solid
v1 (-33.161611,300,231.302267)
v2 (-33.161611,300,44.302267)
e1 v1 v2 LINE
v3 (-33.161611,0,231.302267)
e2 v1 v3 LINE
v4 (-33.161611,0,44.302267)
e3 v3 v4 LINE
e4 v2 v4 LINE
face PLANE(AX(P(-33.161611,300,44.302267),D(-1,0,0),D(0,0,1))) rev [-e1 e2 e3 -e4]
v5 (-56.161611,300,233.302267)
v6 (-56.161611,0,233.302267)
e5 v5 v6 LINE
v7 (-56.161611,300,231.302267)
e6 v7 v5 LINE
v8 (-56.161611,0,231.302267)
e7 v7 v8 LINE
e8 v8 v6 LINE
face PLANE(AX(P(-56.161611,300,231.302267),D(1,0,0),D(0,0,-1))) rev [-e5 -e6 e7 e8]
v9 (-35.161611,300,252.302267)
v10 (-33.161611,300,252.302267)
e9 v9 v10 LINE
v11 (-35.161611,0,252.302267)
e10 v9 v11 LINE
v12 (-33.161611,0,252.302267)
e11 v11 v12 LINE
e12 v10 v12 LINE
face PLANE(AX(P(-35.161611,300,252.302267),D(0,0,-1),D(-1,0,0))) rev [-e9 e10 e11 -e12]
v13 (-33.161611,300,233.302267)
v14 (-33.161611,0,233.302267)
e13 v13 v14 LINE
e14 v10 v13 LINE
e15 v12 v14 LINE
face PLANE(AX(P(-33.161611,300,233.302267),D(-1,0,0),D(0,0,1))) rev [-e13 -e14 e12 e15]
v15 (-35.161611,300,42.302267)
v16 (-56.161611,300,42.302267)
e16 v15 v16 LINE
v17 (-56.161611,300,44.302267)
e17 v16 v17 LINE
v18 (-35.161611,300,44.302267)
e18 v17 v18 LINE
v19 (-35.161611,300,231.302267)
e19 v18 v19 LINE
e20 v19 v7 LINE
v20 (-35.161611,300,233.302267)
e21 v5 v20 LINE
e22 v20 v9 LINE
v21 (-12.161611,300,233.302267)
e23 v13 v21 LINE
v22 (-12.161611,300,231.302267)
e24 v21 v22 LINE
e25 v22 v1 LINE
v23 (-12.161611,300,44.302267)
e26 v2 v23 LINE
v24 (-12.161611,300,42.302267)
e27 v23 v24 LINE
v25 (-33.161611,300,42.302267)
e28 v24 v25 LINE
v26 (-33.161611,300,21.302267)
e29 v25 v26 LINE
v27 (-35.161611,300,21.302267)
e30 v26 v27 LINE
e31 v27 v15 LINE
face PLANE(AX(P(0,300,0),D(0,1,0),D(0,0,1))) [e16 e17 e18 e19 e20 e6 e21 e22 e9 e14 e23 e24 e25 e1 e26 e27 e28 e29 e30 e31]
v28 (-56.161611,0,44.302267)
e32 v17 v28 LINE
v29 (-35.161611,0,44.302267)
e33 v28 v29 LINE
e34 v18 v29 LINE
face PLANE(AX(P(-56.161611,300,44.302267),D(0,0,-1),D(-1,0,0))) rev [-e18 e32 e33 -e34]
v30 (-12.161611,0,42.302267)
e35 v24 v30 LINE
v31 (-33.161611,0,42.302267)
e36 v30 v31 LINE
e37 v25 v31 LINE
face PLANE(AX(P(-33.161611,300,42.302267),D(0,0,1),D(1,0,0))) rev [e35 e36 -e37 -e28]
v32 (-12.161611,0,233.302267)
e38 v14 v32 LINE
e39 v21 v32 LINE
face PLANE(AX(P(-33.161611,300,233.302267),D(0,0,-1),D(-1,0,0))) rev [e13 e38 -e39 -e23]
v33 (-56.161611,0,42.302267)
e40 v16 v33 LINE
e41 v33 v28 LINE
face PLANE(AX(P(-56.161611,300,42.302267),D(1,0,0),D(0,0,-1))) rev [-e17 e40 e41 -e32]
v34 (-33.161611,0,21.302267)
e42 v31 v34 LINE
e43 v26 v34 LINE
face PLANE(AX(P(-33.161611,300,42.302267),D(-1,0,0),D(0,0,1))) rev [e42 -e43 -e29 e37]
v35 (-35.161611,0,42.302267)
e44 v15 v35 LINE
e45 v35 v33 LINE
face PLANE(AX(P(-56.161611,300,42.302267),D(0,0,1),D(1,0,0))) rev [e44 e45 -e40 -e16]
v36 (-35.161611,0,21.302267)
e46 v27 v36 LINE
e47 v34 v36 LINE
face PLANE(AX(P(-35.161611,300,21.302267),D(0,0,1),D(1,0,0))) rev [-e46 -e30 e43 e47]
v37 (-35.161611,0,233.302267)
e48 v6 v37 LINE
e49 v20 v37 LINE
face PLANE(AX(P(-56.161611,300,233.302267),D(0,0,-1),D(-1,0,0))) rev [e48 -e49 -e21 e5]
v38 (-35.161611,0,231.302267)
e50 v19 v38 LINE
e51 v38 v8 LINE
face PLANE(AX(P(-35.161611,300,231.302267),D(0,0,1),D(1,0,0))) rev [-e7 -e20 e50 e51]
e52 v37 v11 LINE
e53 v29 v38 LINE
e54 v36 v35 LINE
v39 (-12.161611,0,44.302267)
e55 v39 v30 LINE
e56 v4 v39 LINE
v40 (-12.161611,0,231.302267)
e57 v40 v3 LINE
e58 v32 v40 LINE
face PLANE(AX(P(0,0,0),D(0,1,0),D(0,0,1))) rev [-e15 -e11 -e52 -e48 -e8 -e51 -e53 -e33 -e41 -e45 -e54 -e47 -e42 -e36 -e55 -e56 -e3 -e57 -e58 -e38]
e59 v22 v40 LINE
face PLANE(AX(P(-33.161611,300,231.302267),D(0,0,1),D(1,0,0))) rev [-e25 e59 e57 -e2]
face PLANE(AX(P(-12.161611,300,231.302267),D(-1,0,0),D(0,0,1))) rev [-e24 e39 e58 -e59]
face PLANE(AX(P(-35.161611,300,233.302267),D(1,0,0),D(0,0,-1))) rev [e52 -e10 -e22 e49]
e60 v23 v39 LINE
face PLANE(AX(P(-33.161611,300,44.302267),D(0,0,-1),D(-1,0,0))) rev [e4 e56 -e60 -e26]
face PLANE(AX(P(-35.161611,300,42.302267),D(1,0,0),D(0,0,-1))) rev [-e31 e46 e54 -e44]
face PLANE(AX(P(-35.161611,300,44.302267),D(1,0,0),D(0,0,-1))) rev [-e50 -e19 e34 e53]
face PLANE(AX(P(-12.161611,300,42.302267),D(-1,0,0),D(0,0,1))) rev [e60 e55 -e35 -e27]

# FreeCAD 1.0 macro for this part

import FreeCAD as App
import Part
import Sketcher
from FreeCAD import Vector
Q = App.Units.Quantity

doc = App.newDocument("Part")
body = doc.addObject("PartDesign::Body", "Body")

# Sketch on XZ plane
sketch1 = body.newObject("Sketcher::SketchObject", "Sketch")
sketch1.AttachmentSupport = (doc.getObject("XZ_Plane"), [""])
sketch1.MapMode = "FlatFace"
sketch1.addGeometry([
    Part.LineSegment(Vector(-35.2, 42.3, 0), Vector(-56.2, 42.3, 0)),  # 0
    Part.LineSegment(Vector(-56.2, 42.3, 0), Vector(-56.2, 44.3, 0)),  # 1
    Part.LineSegment(Vector(-56.2, 44.3, 0), Vector(-35.2, 44.3, 0)),  # 2
    Part.LineSegment(Vector(-35.2, 44.3, 0), Vector(-35.2, 231.3, 0)),  # 3
    Part.LineSegment(Vector(-35.2, 231.3, 0), Vector(-56.2, 231.3, 0)),  # 4
    Part.LineSegment(Vector(-56.2, 231.3, 0), Vector(-56.2, 233.3, 0)),  # 5
    Part.LineSegment(Vector(-56.2, 233.3, 0), Vector(-35.2, 233.3, 0)),  # 6
    Part.LineSegment(Vector(-35.2, 233.3, 0), Vector(-35.2, 252.3, 0)),  # 7
    Part.LineSegment(Vector(-35.2, 252.3, 0), Vector(-33.2, 252.3, 0)),  # 8
    Part.LineSegment(Vector(-33.2, 252.3, 0), Vector(-33.2, 233.3, 0)),  # 9
    Part.LineSegment(Vector(-33.2, 233.3, 0), Vector(-12.2, 233.3, 0)),  # 10
    Part.LineSegment(Vector(-12.2, 233.3, 0), Vector(-12.2, 231.3, 0)),  # 11
    Part.LineSegment(Vector(-12.2, 231.3, 0), Vector(-33.2, 231.3, 0)),  # 12
    Part.LineSegment(Vector(-33.2, 231.3, 0), Vector(-33.2, 44.3, 0)),  # 13
    Part.LineSegment(Vector(-33.2, 44.3, 0), Vector(-12.2, 44.3, 0)),  # 14
    Part.LineSegment(Vector(-12.2, 44.3, 0), Vector(-12.2, 42.3, 0)),  # 15
    Part.LineSegment(Vector(-12.2, 42.3, 0), Vector(-33.2, 42.3, 0)),  # 16
    Part.LineSegment(Vector(-33.2, 42.3, 0), Vector(-33.2, 21.3, 0)),  # 17
    Part.LineSegment(Vector(-33.2, 21.3, 0), Vector(-35.2, 21.3, 0)),  # 18
    Part.LineSegment(Vector(-35.2, 21.3, 0), Vector(-35.2, 42.3, 0)),  # 19
], False)
sketch1.addConstraint([
    Sketcher.Constraint("Coincident", 0, 2, 1, 1),
    Sketcher.Constraint("Coincident", 1, 2, 2, 1),
    Sketcher.Constraint("Coincident", 2, 2, 3, 1),
    Sketcher.Constraint("Coincident", 3, 2, 4, 1),
    Sketcher.Constraint("Coincident", 4, 2, 5, 1),
    Sketcher.Constraint("Coincident", 5, 2, 6, 1),
    Sketcher.Constraint("Coincident", 6, 2, 7, 1),
    Sketcher.Constraint("Coincident", 7, 2, 8, 1),
    Sketcher.Constraint("Coincident", 8, 2, 9, 1),
    Sketcher.Constraint("Coincident", 9, 2, 10, 1),
    Sketcher.Constraint("Coincident", 10, 2, 11, 1),
    Sketcher.Constraint("Coincident", 11, 2, 12, 1),
    Sketcher.Constraint("Coincident", 12, 2, 13, 1),
    Sketcher.Constraint("Coincident", 13, 2, 14, 1),
    Sketcher.Constraint("Coincident", 14, 2, 15, 1),
    Sketcher.Constraint("Coincident", 15, 2, 16, 1),
    Sketcher.Constraint("Coincident", 16, 2, 17, 1),
    Sketcher.Constraint("Coincident", 17, 2, 18, 1),
    Sketcher.Constraint("Coincident", 18, 2, 19, 1),
    Sketcher.Constraint("Coincident", 19, 2, 0, 1),
    Sketcher.Constraint("Horizontal", 0),
    Sketcher.Constraint("Vertical", 1),
    Sketcher.Constraint("Horizontal", 2),
    Sketcher.Constraint("Vertical", 3),
    Sketcher.Constraint("Horizontal", 4),
    Sketcher.Constraint("Vertical", 5),
    Sketcher.Constraint("Horizontal", 6),
    Sketcher.Constraint("Vertical", 7),
    Sketcher.Constraint("Horizontal", 8),
    Sketcher.Constraint("Vertical", 9),
    Sketcher.Constraint("Horizontal", 10),
    Sketcher.Constraint("Vertical", 11),
    Sketcher.Constraint("Horizontal", 12),
    Sketcher.Constraint("Vertical", 13),
    Sketcher.Constraint("Horizontal", 14),
    Sketcher.Constraint("Vertical", 15),
    Sketcher.Constraint("Horizontal", 16),
    Sketcher.Constraint("Vertical", 17),
    Sketcher.Constraint("Horizontal", 18),
    Sketcher.Constraint("Vertical", 19),
    Sketcher.Constraint("Horizontal", 6, 2, 9, 2),
    Sketcher.Constraint("Horizontal", 4, 2, 11, 2),
    Sketcher.Constraint("Horizontal", 2, 2, 13, 2),
    Sketcher.Constraint("Horizontal", 0, 2, 15, 2),
    Sketcher.Constraint("Vertical", 1, 2, 4, 2),
    Sketcher.Constraint("Vertical", 3, 2, 6, 2),
    Sketcher.Constraint("Vertical", 9, 2, 12, 2),
    Sketcher.Constraint("Vertical", 11, 2, 14, 2),
    Sketcher.Constraint("Vertical", 13, 2, 16, 2),
    Sketcher.Constraint("Vertical", 7, 2, 18, 2),
    Sketcher.Constraint("Equal", 6, 10),
    Sketcher.Constraint("Equal", 18, 1),
    Sketcher.Constraint("Equal", 1, 5),
    Sketcher.Constraint("Equal", 16, 17),
    Sketcher.Constraint("DistanceX", 0, 2, 0, 1, Q("21 mm")),
    Sketcher.Constraint("DistanceX", 8, 1, 8, 2, Q("2 mm")),
    Sketcher.Constraint("DistanceY", 3, 1, 3, 2, Q("187 mm")),
    Sketcher.Constraint("DistanceY", 7, 1, 7, 2, Q("19 mm")),
    Sketcher.Constraint("DistanceX", 0, 2, -1, 1, Q("56.161611 mm")),
    Sketcher.Constraint("DistanceY", -1, 1, 0, 2, Q("42.302267 mm")),
])
pad1 = body.newObject("PartDesign::Pad", "Pad")
pad1.Profile = sketch1
pad1.Length = 300
pad1.Reversed = True

doc.recompute()
